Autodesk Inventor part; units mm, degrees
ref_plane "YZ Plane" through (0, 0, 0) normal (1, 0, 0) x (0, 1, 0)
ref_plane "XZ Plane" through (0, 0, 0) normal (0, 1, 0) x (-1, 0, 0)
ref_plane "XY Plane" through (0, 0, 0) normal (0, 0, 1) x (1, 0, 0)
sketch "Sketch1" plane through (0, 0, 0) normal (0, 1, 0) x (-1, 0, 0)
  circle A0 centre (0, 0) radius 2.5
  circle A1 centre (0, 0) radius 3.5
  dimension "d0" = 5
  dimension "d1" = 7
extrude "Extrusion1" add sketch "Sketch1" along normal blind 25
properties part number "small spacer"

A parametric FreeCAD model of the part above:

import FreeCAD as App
import Part
import Sketcher

V = App.Vector
Q = App.Units.Quantity

doc = App.newDocument("Part")
body = doc.addObject("PartDesign::Body", "Body")

# Sketch on XZ plane
sketch1 = doc.addObject("Sketcher::SketchObject", "Sketch")
body.addObject(sketch1)
sketch1.AttachmentSupport = (doc.XZ_Plane, [""])
sketch1.MapMode = "FlatFace"
sketch1.addGeometry([
    Part.Circle(V(0, 0, 0), V(0, 0, 1), 3.5),
    Part.Circle(V(0, 0, 0), V(0, 0, 1), 2.5),
], False)
sketch1.addConstraint([
    Sketcher.Constraint("Coincident", 0, 3, -1, 1),
    Sketcher.Constraint("Coincident", 1, 3, -1, 1),
    Sketcher.Constraint("Diameter", 0, Q("7 mm")),
    Sketcher.Constraint("Diameter", 1, Q("5 mm")),
])
pad1 = doc.addObject("PartDesign::Pad", "Pad")
body.addObject(pad1)
pad1.Profile = sketch1
pad1.Length = 25
pad1.Reversed = True

doc.recompute()
